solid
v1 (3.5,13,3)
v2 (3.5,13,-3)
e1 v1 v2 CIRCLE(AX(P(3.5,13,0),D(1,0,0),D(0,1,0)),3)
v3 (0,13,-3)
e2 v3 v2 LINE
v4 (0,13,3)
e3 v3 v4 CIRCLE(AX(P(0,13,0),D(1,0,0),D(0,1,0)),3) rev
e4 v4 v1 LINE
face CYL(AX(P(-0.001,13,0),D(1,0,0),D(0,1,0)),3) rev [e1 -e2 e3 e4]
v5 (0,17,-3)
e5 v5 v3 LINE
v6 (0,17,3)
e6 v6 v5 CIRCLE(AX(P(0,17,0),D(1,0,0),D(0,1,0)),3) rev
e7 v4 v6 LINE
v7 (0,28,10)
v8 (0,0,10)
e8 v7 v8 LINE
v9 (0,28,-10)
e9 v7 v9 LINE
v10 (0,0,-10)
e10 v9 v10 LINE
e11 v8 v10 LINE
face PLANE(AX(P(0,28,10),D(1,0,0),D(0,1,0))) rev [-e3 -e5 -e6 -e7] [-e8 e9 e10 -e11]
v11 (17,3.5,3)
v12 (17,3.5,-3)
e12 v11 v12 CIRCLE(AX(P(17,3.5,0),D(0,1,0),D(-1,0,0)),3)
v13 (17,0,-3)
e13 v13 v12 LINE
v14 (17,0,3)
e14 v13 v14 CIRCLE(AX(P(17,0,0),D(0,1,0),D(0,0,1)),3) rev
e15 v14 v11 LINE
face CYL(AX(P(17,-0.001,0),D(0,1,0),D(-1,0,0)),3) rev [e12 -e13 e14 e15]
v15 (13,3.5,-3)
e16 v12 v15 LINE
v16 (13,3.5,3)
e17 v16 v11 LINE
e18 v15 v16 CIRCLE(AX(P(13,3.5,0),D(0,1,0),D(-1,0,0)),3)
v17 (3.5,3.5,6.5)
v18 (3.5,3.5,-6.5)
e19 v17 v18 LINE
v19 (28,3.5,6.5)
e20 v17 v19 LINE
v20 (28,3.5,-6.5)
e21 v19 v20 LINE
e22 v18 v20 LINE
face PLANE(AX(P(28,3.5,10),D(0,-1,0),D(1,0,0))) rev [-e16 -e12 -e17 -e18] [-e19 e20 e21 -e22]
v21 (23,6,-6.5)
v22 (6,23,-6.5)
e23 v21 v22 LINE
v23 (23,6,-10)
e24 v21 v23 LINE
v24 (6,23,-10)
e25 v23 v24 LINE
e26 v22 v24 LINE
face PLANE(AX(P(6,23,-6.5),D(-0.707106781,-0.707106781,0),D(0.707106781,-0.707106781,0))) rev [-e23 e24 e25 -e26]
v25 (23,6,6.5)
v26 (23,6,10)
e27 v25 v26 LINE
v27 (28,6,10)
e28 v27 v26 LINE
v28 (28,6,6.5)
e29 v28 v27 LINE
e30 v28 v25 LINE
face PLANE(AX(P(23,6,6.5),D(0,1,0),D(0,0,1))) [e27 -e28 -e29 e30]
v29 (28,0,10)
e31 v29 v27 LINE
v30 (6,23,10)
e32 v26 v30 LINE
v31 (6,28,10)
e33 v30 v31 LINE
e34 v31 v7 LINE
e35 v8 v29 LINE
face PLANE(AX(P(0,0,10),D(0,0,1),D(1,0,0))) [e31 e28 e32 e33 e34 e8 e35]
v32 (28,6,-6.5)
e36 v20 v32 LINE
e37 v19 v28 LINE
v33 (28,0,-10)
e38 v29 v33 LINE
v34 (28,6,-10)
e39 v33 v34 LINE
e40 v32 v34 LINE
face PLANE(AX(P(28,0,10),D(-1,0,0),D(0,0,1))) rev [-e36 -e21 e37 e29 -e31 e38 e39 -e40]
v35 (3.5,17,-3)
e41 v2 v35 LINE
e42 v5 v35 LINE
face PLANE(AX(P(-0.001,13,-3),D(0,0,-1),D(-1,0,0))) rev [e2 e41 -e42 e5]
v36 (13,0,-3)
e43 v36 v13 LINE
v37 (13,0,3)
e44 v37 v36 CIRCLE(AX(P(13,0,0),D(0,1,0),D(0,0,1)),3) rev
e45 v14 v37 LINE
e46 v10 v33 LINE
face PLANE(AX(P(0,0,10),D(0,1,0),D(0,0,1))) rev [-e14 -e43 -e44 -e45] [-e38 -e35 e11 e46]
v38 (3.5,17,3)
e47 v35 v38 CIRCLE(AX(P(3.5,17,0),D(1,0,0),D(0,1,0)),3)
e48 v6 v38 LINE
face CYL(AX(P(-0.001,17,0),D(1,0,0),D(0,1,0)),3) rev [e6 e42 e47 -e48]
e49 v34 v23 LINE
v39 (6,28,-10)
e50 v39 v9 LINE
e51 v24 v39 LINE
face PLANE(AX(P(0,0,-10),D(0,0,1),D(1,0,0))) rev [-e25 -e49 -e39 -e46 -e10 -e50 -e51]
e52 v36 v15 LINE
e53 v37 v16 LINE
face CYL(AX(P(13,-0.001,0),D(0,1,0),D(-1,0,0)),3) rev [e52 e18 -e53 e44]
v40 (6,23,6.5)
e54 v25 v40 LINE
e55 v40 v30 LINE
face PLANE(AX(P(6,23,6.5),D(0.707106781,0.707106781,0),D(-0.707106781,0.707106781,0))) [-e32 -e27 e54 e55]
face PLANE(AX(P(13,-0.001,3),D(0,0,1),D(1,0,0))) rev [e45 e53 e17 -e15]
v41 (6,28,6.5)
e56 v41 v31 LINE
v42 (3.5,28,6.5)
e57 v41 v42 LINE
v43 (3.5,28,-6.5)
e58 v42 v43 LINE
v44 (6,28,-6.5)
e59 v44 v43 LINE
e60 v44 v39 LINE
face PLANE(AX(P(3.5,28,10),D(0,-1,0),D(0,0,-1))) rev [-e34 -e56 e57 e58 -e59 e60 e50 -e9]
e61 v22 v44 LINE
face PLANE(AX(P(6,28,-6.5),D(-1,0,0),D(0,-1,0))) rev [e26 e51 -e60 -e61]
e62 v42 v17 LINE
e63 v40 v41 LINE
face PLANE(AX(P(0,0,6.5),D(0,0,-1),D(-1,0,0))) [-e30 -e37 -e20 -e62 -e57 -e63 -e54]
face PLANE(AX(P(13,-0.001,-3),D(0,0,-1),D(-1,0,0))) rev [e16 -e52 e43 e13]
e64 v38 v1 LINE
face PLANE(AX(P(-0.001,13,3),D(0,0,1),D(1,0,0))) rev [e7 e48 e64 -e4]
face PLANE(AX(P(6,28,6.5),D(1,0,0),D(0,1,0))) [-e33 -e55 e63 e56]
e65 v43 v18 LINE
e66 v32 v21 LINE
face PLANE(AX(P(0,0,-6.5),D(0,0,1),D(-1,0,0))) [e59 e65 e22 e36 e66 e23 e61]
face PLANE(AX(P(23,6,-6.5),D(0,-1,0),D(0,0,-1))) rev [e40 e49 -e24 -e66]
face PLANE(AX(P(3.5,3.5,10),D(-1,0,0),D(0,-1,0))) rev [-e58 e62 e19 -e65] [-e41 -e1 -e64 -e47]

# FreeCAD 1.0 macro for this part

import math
import FreeCAD as App
import Part
import Sketcher

doc = App.newDocument("Part")
params = doc.addObject("Spreadsheet::Sheet", "Params")
for row, (alias, value) in enumerate([
    ("sketch1_width", "28 mm"),
    ("sketch1_width2", "24.5 mm"),
    ("pad1_length", "20 mm"),
    ("sketch2_width", "5 mm"),
    ("sketch2_width2", "2.5 mm"),
    ("sketch2_width3", "24.5 mm"),
    ("pad2_length", "3.5 mm"),
    ("sketch3_radius", "3 mm"),
    ("sketch3_width", "4 mm"),
    ("sketch4_radius", "3 mm"),
    ("sketch4_width", "4 mm"),
], start=1):
    params.set(f"A{row}", alias)
    params.set(f"B{row}", "=" + value)
    params.setAlias(f"B{row}", alias)

body = doc.addObject("PartDesign::Body", "Body")

sketch1 = body.newObject("Sketcher::SketchObject", "Sketch")
sketch1.AttachmentSupport = (doc.getObject("XY_Plane"), [""])
sketch1.MapMode = "FlatFace"
sketch1.addGeometry(Part.LineSegment(App.Vector(0, 28, 0), App.Vector(0, 0, 0)), False)
sketch1.addGeometry(Part.LineSegment(App.Vector(0, 0, 0), App.Vector(28, 0, 0)), False)
sketch1.addGeometry(Part.LineSegment(App.Vector(28, 0, 0), App.Vector(28, 3.5, 0)), False)
sketch1.addGeometry(Part.LineSegment(App.Vector(28, 3.5, 0), App.Vector(3.5, 3.5, 0)), False)
sketch1.addGeometry(Part.LineSegment(App.Vector(3.5, 3.5, 0), App.Vector(3.5, 28, 0)), False)
sketch1.addGeometry(Part.LineSegment(App.Vector(3.5, 28, 0), App.Vector(0, 28, 0)), False)
sketch1.addConstraint(Sketcher.Constraint("Coincident", 0, 2, 1, 1))
sketch1.addConstraint(Sketcher.Constraint("Coincident", 1, 2, 2, 1))
sketch1.addConstraint(Sketcher.Constraint("Coincident", 2, 2, 3, 1))
sketch1.addConstraint(Sketcher.Constraint("Coincident", 3, 2, 4, 1))
sketch1.addConstraint(Sketcher.Constraint("Coincident", 4, 2, 5, 1))
sketch1.addConstraint(Sketcher.Constraint("Coincident", 5, 2, 0, 1))
sketch1.addConstraint(Sketcher.Constraint("Vertical", 0))
sketch1.addConstraint(Sketcher.Constraint("Horizontal", 1))
sketch1.addConstraint(Sketcher.Constraint("Vertical", 2))
sketch1.addConstraint(Sketcher.Constraint("Horizontal", 3))
sketch1.addConstraint(Sketcher.Constraint("Vertical", 4))
sketch1.addConstraint(Sketcher.Constraint("Horizontal", 5))
sketch1.addConstraint(Sketcher.Constraint("Coincident", 0, 2, -1, 1))
sketch1.addConstraint(Sketcher.Constraint("Equal", 1, 0))
sketch1.addConstraint(Sketcher.Constraint("Equal", 5, 2))
sketch1.addConstraint(Sketcher.Constraint("DistanceX", 1, 1, 1, 2, 28.0))
sketch1.addConstraint(Sketcher.Constraint("DistanceX", 3, 2, 3, 1, 24.5))
sketch1.setExpression("Constraints[15]", "Params.sketch1_width")
sketch1.setExpression("Constraints[16]", "Params.sketch1_width2")
pad1 = body.newObject("PartDesign::Pad", "Pad")
pad1.Profile = sketch1
pad1.setExpression("Length", "Params.pad1_length")
pad1.Midplane = True

sketch2 = body.newObject("Sketcher::SketchObject", "Sketch001")
sketch2.AttachmentSupport = (doc.getObject("XY_Plane"), [""])
sketch2.MapMode = "FlatFace"
sketch2.AttachmentOffset = App.Placement(App.Vector(0, 0, 10), App.Rotation())
sketch2.addGeometry(Part.LineSegment(App.Vector(6, 28, 0), App.Vector(3.5, 28, 0)), False)
sketch2.addGeometry(Part.LineSegment(App.Vector(3.5, 28, 0), App.Vector(3.5, 3.5, 0)), False)
sketch2.addGeometry(Part.LineSegment(App.Vector(3.5, 3.5, 0), App.Vector(28, 3.5, 0)), False)
sketch2.addGeometry(Part.LineSegment(App.Vector(28, 3.5, 0), App.Vector(28, 6, 0)), False)
sketch2.addGeometry(Part.LineSegment(App.Vector(28, 6, 0), App.Vector(23, 6, 0)), False)
sketch2.addGeometry(Part.LineSegment(App.Vector(23, 6, 0), App.Vector(6, 23, 0)), False)
sketch2.addGeometry(Part.LineSegment(App.Vector(6, 23, 0), App.Vector(6, 28, 0)), False)
sketch2.addConstraint(Sketcher.Constraint("Coincident", 0, 2, 1, 1))
sketch2.addConstraint(Sketcher.Constraint("Coincident", 1, 2, 2, 1))
sketch2.addConstraint(Sketcher.Constraint("Coincident", 2, 2, 3, 1))
sketch2.addConstraint(Sketcher.Constraint("Coincident", 3, 2, 4, 1))
sketch2.addConstraint(Sketcher.Constraint("Coincident", 4, 2, 5, 1))
sketch2.addConstraint(Sketcher.Constraint("Coincident", 5, 2, 6, 1))
sketch2.addConstraint(Sketcher.Constraint("Coincident", 6, 2, 0, 1))
sketch2.addConstraint(Sketcher.Constraint("Horizontal", 0))
sketch2.addConstraint(Sketcher.Constraint("Vertical", 1))
sketch2.addConstraint(Sketcher.Constraint("Horizontal", 2))
sketch2.addConstraint(Sketcher.Constraint("Vertical", 3))
sketch2.addConstraint(Sketcher.Constraint("Horizontal", 4))
sketch2.addConstraint(Sketcher.Constraint("Vertical", 6))
sketch2.addConstraint(Sketcher.Constraint("Equal", 2, 1))
sketch2.addConstraint(Sketcher.Constraint("Equal", 0, 3))
sketch2.addConstraint(Sketcher.Constraint("Equal", 4, 6))
sketch2.addConstraint(Sketcher.Constraint("DistanceX", 4, 2, 4, 1, 5.0))
sketch2.addConstraint(Sketcher.Constraint("DistanceX", 0, 2, 0, 1, 2.5))
sketch2.addConstraint(Sketcher.Constraint("DistanceX", 2, 1, 2, 2, 24.5))
sketch2.addConstraint(Sketcher.Constraint("DistanceY", -1, 1, 0, 2, 28.0))
sketch2.addConstraint(Sketcher.Constraint("DistanceX", -1, 1, 2, 2, 28.0))
sketch2.setExpression("Constraints[16]", "Params.sketch2_width")
sketch2.setExpression("Constraints[17]", "Params.sketch2_width2")
sketch2.setExpression("Constraints[18]", "Params.sketch2_width3")
pad2 = body.newObject("PartDesign::Pad", "Pad001")
pad2.Profile = sketch2
pad2.setExpression("Length", "Params.pad2_length")
pad2.Reversed = True
doc.recompute()

mirrored = body.newObject("PartDesign::Mirrored", "Mirrored")
mirrored.Originals = [pad2]
mirrored.MirrorPlane = (doc.getObject("XY_Plane"), [""])
body.Tip = mirrored

sketch3 = body.newObject("Sketcher::SketchObject", "Sketch002")
sketch3.AttachmentSupport = (doc.getObject("XZ_Plane"), [""])
sketch3.MapMode = "FlatFace"
sketch3.AttachmentOffset = App.Placement(App.Vector(0, 0, -3.5), App.Rotation())
sketch3.addGeometry(Part.LineSegment(App.Vector(17, -3, 0), App.Vector(13, -3, 0)), False)
sketch3.addGeometry(Part.ArcOfCircle(Part.Circle(App.Vector(13, 0, 0), App.Vector(0, 0, 1), 3), math.radians(90), math.radians(270)), False)
sketch3.addGeometry(Part.LineSegment(App.Vector(13, 3, 0), App.Vector(17, 3, 0)), False)
sketch3.addGeometry(Part.ArcOfCircle(Part.Circle(App.Vector(17, 0, 0), App.Vector(0, 0, 1), 3), math.radians(-90), math.radians(90)), False)
sketch3.addConstraint(Sketcher.Constraint("Tangent", 0, 2, 1, 2))
sketch3.addConstraint(Sketcher.Constraint("Tangent", 1, 1, 2, 1))
sketch3.addConstraint(Sketcher.Constraint("Tangent", 2, 2, 3, 2))
sketch3.addConstraint(Sketcher.Constraint("Tangent", 3, 1, 0, 1))
sketch3.addConstraint(Sketcher.Constraint("Horizontal", 0))
sketch3.addConstraint(Sketcher.Constraint("Horizontal", 2))
sketch3.addConstraint(Sketcher.Constraint("PointOnObject", 1, 3, -1))
sketch3.addConstraint(Sketcher.Constraint("Radius", 1, 3.0))
sketch3.addConstraint(Sketcher.Constraint("DistanceX", 0, 2, 0, 1, 4.0))
sketch3.addConstraint(Sketcher.Constraint("DistanceX", -1, 1, 1, 3, 13.0))
sketch3.setExpression("Constraints[7]", "Params.sketch3_radius")
sketch3.setExpression("Constraints[8]", "Params.sketch3_width")
pocket1 = body.newObject("PartDesign::Pocket", "Pocket")
pocket1.Profile = sketch3
pocket1.Type = "UpToFirst"
pocket1.Reversed = True

sketch4 = body.newObject("Sketcher::SketchObject", "Sketch003")
sketch4.AttachmentSupport = (doc.getObject("YZ_Plane"), [""])
sketch4.MapMode = "FlatFace"
sketch4.AttachmentOffset = App.Placement(App.Vector(0, 0, 3.5), App.Rotation())
sketch4.addGeometry(Part.LineSegment(App.Vector(17, 3, 0), App.Vector(13, 3, 0)), False)
sketch4.addGeometry(Part.ArcOfCircle(Part.Circle(App.Vector(13, 0, 0), App.Vector(0, 0, 1), 3), math.radians(90), math.radians(270)), False)
sketch4.addGeometry(Part.LineSegment(App.Vector(13, -3, 0), App.Vector(17, -3, 0)), False)
sketch4.addGeometry(Part.ArcOfCircle(Part.Circle(App.Vector(17, 0, 0), App.Vector(0, 0, 1), 3), math.radians(-90), math.radians(90)), False)
sketch4.addConstraint(Sketcher.Constraint("Tangent", 0, 2, 1, 1))
sketch4.addConstraint(Sketcher.Constraint("Tangent", 1, 2, 2, 1))
sketch4.addConstraint(Sketcher.Constraint("Tangent", 2, 2, 3, 1))
sketch4.addConstraint(Sketcher.Constraint("Tangent", 3, 2, 0, 1))
sketch4.addConstraint(Sketcher.Constraint("Horizontal", 0))
sketch4.addConstraint(Sketcher.Constraint("Horizontal", 2))
sketch4.addConstraint(Sketcher.Constraint("PointOnObject", 1, 3, -1))
sketch4.addConstraint(Sketcher.Constraint("Radius", 1, 3.0))
sketch4.addConstraint(Sketcher.Constraint("DistanceX", 0, 2, 0, 1, 4.0))
sketch4.addConstraint(Sketcher.Constraint("DistanceX", -1, 1, 1, 3, 13.0))
sketch4.setExpression("Constraints[7]", "Params.sketch4_radius")
sketch4.setExpression("Constraints[8]", "Params.sketch4_width")
pocket2 = body.newObject("PartDesign::Pocket", "Pocket001")
pocket2.Profile = sketch4
pocket2.Type = "UpToFirst"

doc.recompute()
